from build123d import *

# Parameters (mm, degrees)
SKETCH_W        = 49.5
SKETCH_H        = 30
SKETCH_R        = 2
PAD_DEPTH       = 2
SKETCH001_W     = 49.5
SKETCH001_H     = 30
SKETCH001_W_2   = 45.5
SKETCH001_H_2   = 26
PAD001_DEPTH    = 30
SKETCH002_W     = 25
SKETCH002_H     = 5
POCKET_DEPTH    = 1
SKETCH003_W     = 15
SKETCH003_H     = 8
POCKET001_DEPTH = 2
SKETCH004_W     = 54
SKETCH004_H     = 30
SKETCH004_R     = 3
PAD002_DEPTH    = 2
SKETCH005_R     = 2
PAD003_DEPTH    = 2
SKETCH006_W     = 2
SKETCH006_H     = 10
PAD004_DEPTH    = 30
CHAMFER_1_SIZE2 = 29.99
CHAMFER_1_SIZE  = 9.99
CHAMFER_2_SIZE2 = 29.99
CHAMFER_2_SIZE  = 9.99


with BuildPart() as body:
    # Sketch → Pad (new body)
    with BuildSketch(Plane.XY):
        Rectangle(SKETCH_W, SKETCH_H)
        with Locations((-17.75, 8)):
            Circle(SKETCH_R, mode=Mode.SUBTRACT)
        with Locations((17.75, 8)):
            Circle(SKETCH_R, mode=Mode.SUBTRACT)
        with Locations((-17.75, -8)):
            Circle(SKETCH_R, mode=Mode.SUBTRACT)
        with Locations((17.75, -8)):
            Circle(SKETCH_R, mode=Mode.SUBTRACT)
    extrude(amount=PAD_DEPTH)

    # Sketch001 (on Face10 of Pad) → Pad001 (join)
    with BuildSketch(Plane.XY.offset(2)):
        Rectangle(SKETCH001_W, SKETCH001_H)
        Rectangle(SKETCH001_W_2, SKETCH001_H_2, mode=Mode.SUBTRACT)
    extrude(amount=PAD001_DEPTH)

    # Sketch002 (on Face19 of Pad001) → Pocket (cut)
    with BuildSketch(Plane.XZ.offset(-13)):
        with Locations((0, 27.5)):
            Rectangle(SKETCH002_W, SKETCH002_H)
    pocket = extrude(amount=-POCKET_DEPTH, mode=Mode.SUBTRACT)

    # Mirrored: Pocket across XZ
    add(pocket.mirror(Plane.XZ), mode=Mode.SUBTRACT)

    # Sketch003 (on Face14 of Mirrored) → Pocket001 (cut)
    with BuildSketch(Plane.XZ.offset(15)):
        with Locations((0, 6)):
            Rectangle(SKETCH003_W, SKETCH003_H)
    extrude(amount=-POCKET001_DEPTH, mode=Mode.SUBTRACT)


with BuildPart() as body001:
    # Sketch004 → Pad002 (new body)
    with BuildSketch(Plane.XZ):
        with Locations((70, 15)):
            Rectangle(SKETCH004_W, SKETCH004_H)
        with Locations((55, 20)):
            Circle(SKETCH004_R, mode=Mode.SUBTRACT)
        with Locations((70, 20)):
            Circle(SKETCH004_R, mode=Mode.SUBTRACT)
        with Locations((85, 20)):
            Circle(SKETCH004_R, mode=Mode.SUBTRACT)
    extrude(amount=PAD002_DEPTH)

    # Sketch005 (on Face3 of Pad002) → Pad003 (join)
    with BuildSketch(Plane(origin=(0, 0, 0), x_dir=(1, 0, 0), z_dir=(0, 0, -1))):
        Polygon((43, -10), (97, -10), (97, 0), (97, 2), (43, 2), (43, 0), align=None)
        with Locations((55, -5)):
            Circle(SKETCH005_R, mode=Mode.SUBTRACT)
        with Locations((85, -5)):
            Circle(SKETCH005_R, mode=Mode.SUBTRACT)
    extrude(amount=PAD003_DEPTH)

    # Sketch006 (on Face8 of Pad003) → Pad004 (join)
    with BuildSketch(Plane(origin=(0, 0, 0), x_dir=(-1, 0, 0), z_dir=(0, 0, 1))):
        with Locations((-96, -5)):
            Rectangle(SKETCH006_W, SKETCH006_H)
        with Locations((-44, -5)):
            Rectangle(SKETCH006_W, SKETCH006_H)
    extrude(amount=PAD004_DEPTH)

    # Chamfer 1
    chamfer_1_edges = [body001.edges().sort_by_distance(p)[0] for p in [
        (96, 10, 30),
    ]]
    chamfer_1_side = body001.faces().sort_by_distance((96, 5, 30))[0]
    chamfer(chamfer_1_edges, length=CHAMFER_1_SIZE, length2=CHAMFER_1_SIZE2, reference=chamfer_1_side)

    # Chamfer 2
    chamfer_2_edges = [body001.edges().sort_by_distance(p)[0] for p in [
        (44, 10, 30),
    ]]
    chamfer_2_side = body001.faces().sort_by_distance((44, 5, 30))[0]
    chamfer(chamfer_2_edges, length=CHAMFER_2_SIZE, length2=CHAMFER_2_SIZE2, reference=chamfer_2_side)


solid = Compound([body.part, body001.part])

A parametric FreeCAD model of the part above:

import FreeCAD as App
import Part
import Sketcher

V = App.Vector
Q = App.Units.Quantity


def edges_at(feature, points):
    """Names of the edges that pass closest to the given points."""
    edges = feature.Shape.Edges
    near = lambda p: min(range(len(edges)), key=lambda i: edges[i].distToShape(Part.Vertex(*p))[0])
    return sorted({f"Edge{near(p) + 1}" for p in points})


def add_polygon(sketch, points):
    """Adds a closed chain of lines whose ends are joined by coincident constraints."""
    first, n = sketch.GeometryCount, len(points)
    for a, b in zip(points, points[1:] + points[:1]):
        sketch.addGeometry(Part.LineSegment(App.Vector(*a, 0), App.Vector(*b, 0)), False)
    for i in range(n):
        sketch.addConstraint(Sketcher.Constraint("Coincident", first + i, 2, first + (i + 1) % n, 1))

doc = App.newDocument("Part")
body = doc.addObject("PartDesign::Body", "Body")

# Sketch on XY plane
sketch1 = doc.addObject("Sketcher::SketchObject", "Sketch")
body.addObject(sketch1)
sketch1.AttachmentSupport = (doc.XY_Plane, [""])
sketch1.MapMode = "FlatFace"
add_polygon(sketch1, [(-24.8, 15), (-24.8, -15), (24.8, -15), (24.8, 15)])  # lines 0-3
sketch1.addGeometry(Part.Circle(V(-17.8, -8, 0), V(0, 0, 1), 2), False)  # 4
sketch1.addGeometry(Part.Circle(V(17.8, -8, 0), V(0, 0, 1), 2), False)  # 5
sketch1.addGeometry(Part.Circle(V(-17.8, 8, 0), V(0, 0, 1), 2), False)  # 6
sketch1.addGeometry(Part.Circle(V(17.8, 8, 0), V(0, 0, 1), 2), False)  # 7
sketch1.addConstraint(Sketcher.Constraint("Vertical", 0))
sketch1.addConstraint(Sketcher.Constraint("Horizontal", 1))
sketch1.addConstraint(Sketcher.Constraint("Vertical", 2))
sketch1.addConstraint(Sketcher.Constraint("Horizontal", 3))
sketch1.addConstraint(Sketcher.Constraint("Equal", 4, 5))
sketch1.addConstraint(Sketcher.Constraint("Equal", 5, 6))
sketch1.addConstraint(Sketcher.Constraint("Equal", 6, 7))
sketch1.addConstraint(Sketcher.Constraint("Symmetric", 5, 3, 6, 3, -1, 1))
sketch1.addConstraint(Sketcher.Constraint("Symmetric", 4, 3, 7, 3, -1, 1))
sketch1.addConstraint(Sketcher.Constraint("Symmetric", 0, 2, 2, 2, -1, 1))
sketch1.addConstraint(Sketcher.Constraint("Symmetric", 4, 3, 5, 3, -2))
sketch1.addConstraint(Sketcher.Constraint("Diameter", 4, Q("4 mm")))
sketch1.addConstraint(Sketcher.Constraint("DistanceY", 0, 2, 0, 1, Q("30 mm")))
sketch1.addConstraint(Sketcher.Constraint("DistanceX", 1, 1, 1, 2, Q("49.5 mm")))
sketch1.addConstraint(Sketcher.Constraint("DistanceY", 4, 3, -1, 1, Q("8 mm")))
sketch1.addConstraint(Sketcher.Constraint("DistanceX", 0, 2, 4, 3, Q("7 mm")))
pad1 = doc.addObject("PartDesign::Pad", "Pad")
body.addObject(pad1)
pad1.Profile = sketch1
pad1.Length = 2

# Sketch on XY plane
sketch2 = doc.addObject("Sketcher::SketchObject", "Sketch001")
body.addObject(sketch2)
sketch2.AttachmentSupport = (doc.XY_Plane, [""])
sketch2.MapMode = "FlatFace"
sketch2.AttachmentOffset = App.Placement(V(0, 0, 2), App.Rotation())
add_polygon(sketch2, [(-25, 15), (-25, -15), (25, -15), (25, 15)])  # lines 0-3
add_polygon(sketch2, [(23, -13), (-23, -13), (-23, 13), (23, 13)])  # lines 4-7
sketch2.addConstraint(Sketcher.Constraint("Vertical", 0))
sketch2.addConstraint(Sketcher.Constraint("Horizontal", 1))
sketch2.addConstraint(Sketcher.Constraint("Vertical", 2))
sketch2.addConstraint(Sketcher.Constraint("Horizontal", 3))
sketch2.addConstraint(Sketcher.Constraint("Horizontal", 4))
sketch2.addConstraint(Sketcher.Constraint("Vertical", 5))
sketch2.addConstraint(Sketcher.Constraint("Horizontal", 6))
sketch2.addConstraint(Sketcher.Constraint("Vertical", 7))
sketch2.addConstraint(Sketcher.Constraint("Symmetric", 0, 2, 2, 2, -1, 1))
sketch2.addConstraint(Sketcher.Constraint("Symmetric", 4, 2, 6, 2, -1, 1))
sketch2.addConstraint(Sketcher.Constraint("DistanceY", 0, 2, 0, 1, Q("30 mm")))
sketch2.addConstraint(Sketcher.Constraint("DistanceY", 5, 1, 5, 2, Q("26 mm")))
sketch2.addConstraint(Sketcher.Constraint("DistanceX", 1, 1, 1, 2, Q("49.5 mm")))
sketch2.addConstraint(Sketcher.Constraint("DistanceX", 4, 2, 4, 1, Q("45.5 mm")))
pad2 = doc.addObject("PartDesign::Pad", "Pad001")
body.addObject(pad2)
pad2.Profile = sketch2
pad2.Length = 30

# Sketch on XZ plane
sketch3 = doc.addObject("Sketcher::SketchObject", "Sketch002")
body.addObject(sketch3)
sketch3.AttachmentSupport = (doc.XZ_Plane, [""])
sketch3.MapMode = "FlatFace"
sketch3.AttachmentOffset = App.Placement(V(0, 0, -13), App.Rotation())
add_polygon(sketch3, [(-12, 30), (-12, 25), (12, 25), (12, 30)])  # lines 0-3
sketch3.addConstraint(Sketcher.Constraint("Vertical", 0))
sketch3.addConstraint(Sketcher.Constraint("Horizontal", 1))
sketch3.addConstraint(Sketcher.Constraint("Vertical", 2))
sketch3.addConstraint(Sketcher.Constraint("Horizontal", 3))
sketch3.addConstraint(Sketcher.Constraint("DistanceX", 1, 1, 1, 2, Q("25 mm")))
sketch3.addConstraint(Sketcher.Constraint("DistanceY", 0, 2, 0, 1, Q("5 mm")))
sketch3.addConstraint(Sketcher.Constraint("DistanceY", -1, 1, 0, 2, Q("25 mm")))
sketch3.addConstraint(Sketcher.Constraint("DistanceX", 0, 2, -1, 1, Q("12.5 mm")))
pocket1 = doc.addObject("PartDesign::Pocket", "Pocket")
body.addObject(pocket1)
pocket1.Profile = sketch3
pocket1.Length = 1
doc.recompute()

mirrored = doc.addObject("PartDesign::Mirrored", "Mirrored")
body.addObject(mirrored)
mirrored.Originals = [pocket1]
mirrored.MirrorPlane = (doc.XZ_Plane, [""])
body.Tip = mirrored

# Sketch on XZ plane
sketch4 = doc.addObject("Sketcher::SketchObject", "Sketch003")
body.addObject(sketch4)
sketch4.AttachmentSupport = (doc.XZ_Plane, [""])
sketch4.MapMode = "FlatFace"
sketch4.AttachmentOffset = App.Placement(V(0, 0, 15), App.Rotation())
add_polygon(sketch4, [(-8, 10), (-8, 2), (8, 2), (8, 10)])  # lines 0-3
sketch4.addConstraint(Sketcher.Constraint("Vertical", 0))
sketch4.addConstraint(Sketcher.Constraint("Horizontal", 1))
sketch4.addConstraint(Sketcher.Constraint("Vertical", 2))
sketch4.addConstraint(Sketcher.Constraint("Horizontal", 3))
sketch4.addConstraint(Sketcher.Constraint("DistanceX", 1, 1, 1, 2, Q("15 mm")))
sketch4.addConstraint(Sketcher.Constraint("DistanceY", 0, 2, 0, 1, Q("8 mm")))
sketch4.addConstraint(Sketcher.Constraint("DistanceY", -1, 1, 0, 2, Q("2 mm")))
sketch4.addConstraint(Sketcher.Constraint("DistanceX", 0, 2, -1, 1, Q("7.5 mm")))
pocket2 = doc.addObject("PartDesign::Pocket", "Pocket001")
body.addObject(pocket2)
pocket2.Profile = sketch4
pocket2.Length = 2
body2 = doc.addObject("PartDesign::Body", "Body001")

# Sketch on XZ plane
sketch5 = doc.addObject("Sketcher::SketchObject", "Sketch004")
body2.addObject(sketch5)
sketch5.AttachmentSupport = (doc.getObject("XZ_Plane001"), [""])
sketch5.MapMode = "FlatFace"
add_polygon(sketch5, [(43, 30), (43, 0), (97, 0), (97, 30)])  # lines 0-3
sketch5.addGeometry(Part.Circle(V(55, 20, 0), V(0, 0, 1), 3), False)  # 4
sketch5.addGeometry(Part.Circle(V(70, 20, 0), V(0, 0, 1), 3), False)  # 5
sketch5.addGeometry(Part.Circle(V(85, 20, 0), V(0, 0, 1), 3), False)  # 6
sketch5.addConstraint(Sketcher.Constraint("Vertical", 0))
sketch5.addConstraint(Sketcher.Constraint("Horizontal", 1))
sketch5.addConstraint(Sketcher.Constraint("Vertical", 2))
sketch5.addConstraint(Sketcher.Constraint("Horizontal", 3))
sketch5.addConstraint(Sketcher.Constraint("Equal", 4, 5))
sketch5.addConstraint(Sketcher.Constraint("Equal", 5, 6))
sketch5.addConstraint(Sketcher.Constraint("PointOnObject", 0, 2, -1))
sketch5.addConstraint(Sketcher.Constraint("Horizontal", 4, 3, 5, 3))
sketch5.addConstraint(Sketcher.Constraint("Horizontal", 5, 3, 6, 3))
sketch5.addConstraint(Sketcher.Constraint("Diameter", 4, Q("6 mm")))
sketch5.addConstraint(Sketcher.Constraint("DistanceX", 1, 1, 1, 2, Q("54 mm")))
sketch5.addConstraint(Sketcher.Constraint("DistanceY", 0, 2, 0, 1, Q("30 mm")))
sketch5.addConstraint(Sketcher.Constraint("DistanceX", -1, 1, 4, 3, Q("55 mm")))
sketch5.addConstraint(Sketcher.Constraint("DistanceY", -1, 1, 4, 3, Q("20 mm")))
sketch5.addConstraint(Sketcher.Constraint("DistanceX", -1, 1, 5, 3, Q("70 mm")))
sketch5.addConstraint(Sketcher.Constraint("DistanceX", -1, 1, 6, 3, Q("85 mm")))
sketch5.addConstraint(Sketcher.Constraint("DistanceX", -1, 1, 0, 2, Q("43 mm")))
pad3 = doc.addObject("PartDesign::Pad", "Pad002")
body2.addObject(pad3)
pad3.Profile = sketch5
pad3.Length = 2

# Sketch on XY plane
sketch6 = doc.addObject("Sketcher::SketchObject", "Sketch005")
body2.addObject(sketch6)
sketch6.AttachmentSupport = (doc.getObject("XY_Plane001"), [""])
sketch6.MapMode = "FlatFace"
add_polygon(sketch6, [(43, 10), (97, 10), (97, -2), (43, -2)])  # lines 0-3
sketch6.addGeometry(Part.Circle(V(55, 5, 0), V(0, 0, 1), 2), False)  # 4
sketch6.addGeometry(Part.Circle(V(85, 5, 0), V(0, 0, 1), 2), False)  # 5
sketch6.addConstraint(Sketcher.Constraint("Horizontal", 0))
sketch6.addConstraint(Sketcher.Constraint("Vertical", 1))
sketch6.addConstraint(Sketcher.Constraint("Horizontal", 2))
sketch6.addConstraint(Sketcher.Constraint("Vertical", 3))
sketch6.addConstraint(Sketcher.Constraint("Equal", 4, 5))
sketch6.addConstraint(Sketcher.Constraint("Horizontal", 4, 3, 5, 3))
sketch6.addConstraint(Sketcher.Constraint("Diameter", 4, Q("4 mm")))
sketch6.addConstraint(Sketcher.Constraint("DistanceX", 0, 1, 0, 2, Q("54 mm")))
sketch6.addConstraint(Sketcher.Constraint("DistanceY", 1, 2, 1, 1, Q("12 mm")))
sketch6.addConstraint(Sketcher.Constraint("DistanceX", -1, 1, 4, 3, Q("55 mm")))
sketch6.addConstraint(Sketcher.Constraint("DistanceY", -1, 1, 4, 3, Q("5 mm")))
sketch6.addConstraint(Sketcher.Constraint("DistanceX", -1, 1, 5, 3, Q("85 mm")))
sketch6.addConstraint(Sketcher.Constraint("DistanceX", -1, 1, 0, 2, Q("97 mm")))
sketch6.addConstraint(Sketcher.Constraint("DistanceY", -1, 1, 0, 2, Q("10 mm")))
pad4 = doc.addObject("PartDesign::Pad", "Pad003")
body2.addObject(pad4)
pad4.Profile = sketch6
pad4.Length = 2
pad4.Reversed = True

# Sketch on XY plane
sketch7 = doc.addObject("Sketcher::SketchObject", "Sketch006")
body2.addObject(sketch7)
sketch7.AttachmentSupport = (doc.getObject("XY_Plane001"), [""])
sketch7.MapMode = "FlatFace"
add_polygon(sketch7, [(97, 0), (97, 10), (95, 10), (95, 0)])  # lines 0-3
add_polygon(sketch7, [(45, 0), (45, 10), (43, 10), (43, 0)])  # lines 4-7
sketch7.addConstraint(Sketcher.Constraint("Vertical", 0))
sketch7.addConstraint(Sketcher.Constraint("Horizontal", 1))
sketch7.addConstraint(Sketcher.Constraint("Vertical", 2))
sketch7.addConstraint(Sketcher.Constraint("Horizontal", 3))
sketch7.addConstraint(Sketcher.Constraint("Vertical", 4))
sketch7.addConstraint(Sketcher.Constraint("Horizontal", 5))
sketch7.addConstraint(Sketcher.Constraint("Vertical", 6))
sketch7.addConstraint(Sketcher.Constraint("Horizontal", 7))
sketch7.addConstraint(Sketcher.Constraint("PointOnObject", 2, 2, -1))
sketch7.addConstraint(Sketcher.Constraint("PointOnObject", 6, 2, -1))
sketch7.addConstraint(Sketcher.Constraint("Horizontal", 1, 2, 4, 2))
sketch7.addConstraint(Sketcher.Constraint("Equal", 3, 5))
sketch7.addConstraint(Sketcher.Constraint("DistanceX", 1, 2, 1, 1, Q("2 mm")))
sketch7.addConstraint(Sketcher.Constraint("DistanceY", 0, 1, 0, 2, Q("10 mm")))
sketch7.addConstraint(Sketcher.Constraint("DistanceX", -1, 1, 0, 2, Q("97 mm")))
sketch7.addConstraint(Sketcher.Constraint("DistanceX", -1, 1, 4, 2, Q("45 mm")))
pad5 = doc.addObject("PartDesign::Pad", "Pad004")
body2.addObject(pad5)
pad5.Profile = sketch7
pad5.Length = 30
doc.recompute()

chamfer = doc.addObject("PartDesign::Chamfer", "Chamfer")
body2.addObject(chamfer)
chamfer.Base = (pad5, edges_at(pad5, [(96, 10, 30)]))
chamfer.ChamferType = "Two distances"
chamfer.Size = 9.99
chamfer.Size2 = 29.99
chamfer.FlipDirection = True
doc.recompute()

chamfer2 = doc.addObject("PartDesign::Chamfer", "Chamfer001")
body2.addObject(chamfer2)
chamfer2.Base = (chamfer, edges_at(chamfer, [(44, 10, 30)]))
chamfer2.ChamferType = "Two distances"
chamfer2.Size = 9.99
chamfer2.Size2 = 29.99
chamfer2.FlipDirection = True

doc.recompute()
